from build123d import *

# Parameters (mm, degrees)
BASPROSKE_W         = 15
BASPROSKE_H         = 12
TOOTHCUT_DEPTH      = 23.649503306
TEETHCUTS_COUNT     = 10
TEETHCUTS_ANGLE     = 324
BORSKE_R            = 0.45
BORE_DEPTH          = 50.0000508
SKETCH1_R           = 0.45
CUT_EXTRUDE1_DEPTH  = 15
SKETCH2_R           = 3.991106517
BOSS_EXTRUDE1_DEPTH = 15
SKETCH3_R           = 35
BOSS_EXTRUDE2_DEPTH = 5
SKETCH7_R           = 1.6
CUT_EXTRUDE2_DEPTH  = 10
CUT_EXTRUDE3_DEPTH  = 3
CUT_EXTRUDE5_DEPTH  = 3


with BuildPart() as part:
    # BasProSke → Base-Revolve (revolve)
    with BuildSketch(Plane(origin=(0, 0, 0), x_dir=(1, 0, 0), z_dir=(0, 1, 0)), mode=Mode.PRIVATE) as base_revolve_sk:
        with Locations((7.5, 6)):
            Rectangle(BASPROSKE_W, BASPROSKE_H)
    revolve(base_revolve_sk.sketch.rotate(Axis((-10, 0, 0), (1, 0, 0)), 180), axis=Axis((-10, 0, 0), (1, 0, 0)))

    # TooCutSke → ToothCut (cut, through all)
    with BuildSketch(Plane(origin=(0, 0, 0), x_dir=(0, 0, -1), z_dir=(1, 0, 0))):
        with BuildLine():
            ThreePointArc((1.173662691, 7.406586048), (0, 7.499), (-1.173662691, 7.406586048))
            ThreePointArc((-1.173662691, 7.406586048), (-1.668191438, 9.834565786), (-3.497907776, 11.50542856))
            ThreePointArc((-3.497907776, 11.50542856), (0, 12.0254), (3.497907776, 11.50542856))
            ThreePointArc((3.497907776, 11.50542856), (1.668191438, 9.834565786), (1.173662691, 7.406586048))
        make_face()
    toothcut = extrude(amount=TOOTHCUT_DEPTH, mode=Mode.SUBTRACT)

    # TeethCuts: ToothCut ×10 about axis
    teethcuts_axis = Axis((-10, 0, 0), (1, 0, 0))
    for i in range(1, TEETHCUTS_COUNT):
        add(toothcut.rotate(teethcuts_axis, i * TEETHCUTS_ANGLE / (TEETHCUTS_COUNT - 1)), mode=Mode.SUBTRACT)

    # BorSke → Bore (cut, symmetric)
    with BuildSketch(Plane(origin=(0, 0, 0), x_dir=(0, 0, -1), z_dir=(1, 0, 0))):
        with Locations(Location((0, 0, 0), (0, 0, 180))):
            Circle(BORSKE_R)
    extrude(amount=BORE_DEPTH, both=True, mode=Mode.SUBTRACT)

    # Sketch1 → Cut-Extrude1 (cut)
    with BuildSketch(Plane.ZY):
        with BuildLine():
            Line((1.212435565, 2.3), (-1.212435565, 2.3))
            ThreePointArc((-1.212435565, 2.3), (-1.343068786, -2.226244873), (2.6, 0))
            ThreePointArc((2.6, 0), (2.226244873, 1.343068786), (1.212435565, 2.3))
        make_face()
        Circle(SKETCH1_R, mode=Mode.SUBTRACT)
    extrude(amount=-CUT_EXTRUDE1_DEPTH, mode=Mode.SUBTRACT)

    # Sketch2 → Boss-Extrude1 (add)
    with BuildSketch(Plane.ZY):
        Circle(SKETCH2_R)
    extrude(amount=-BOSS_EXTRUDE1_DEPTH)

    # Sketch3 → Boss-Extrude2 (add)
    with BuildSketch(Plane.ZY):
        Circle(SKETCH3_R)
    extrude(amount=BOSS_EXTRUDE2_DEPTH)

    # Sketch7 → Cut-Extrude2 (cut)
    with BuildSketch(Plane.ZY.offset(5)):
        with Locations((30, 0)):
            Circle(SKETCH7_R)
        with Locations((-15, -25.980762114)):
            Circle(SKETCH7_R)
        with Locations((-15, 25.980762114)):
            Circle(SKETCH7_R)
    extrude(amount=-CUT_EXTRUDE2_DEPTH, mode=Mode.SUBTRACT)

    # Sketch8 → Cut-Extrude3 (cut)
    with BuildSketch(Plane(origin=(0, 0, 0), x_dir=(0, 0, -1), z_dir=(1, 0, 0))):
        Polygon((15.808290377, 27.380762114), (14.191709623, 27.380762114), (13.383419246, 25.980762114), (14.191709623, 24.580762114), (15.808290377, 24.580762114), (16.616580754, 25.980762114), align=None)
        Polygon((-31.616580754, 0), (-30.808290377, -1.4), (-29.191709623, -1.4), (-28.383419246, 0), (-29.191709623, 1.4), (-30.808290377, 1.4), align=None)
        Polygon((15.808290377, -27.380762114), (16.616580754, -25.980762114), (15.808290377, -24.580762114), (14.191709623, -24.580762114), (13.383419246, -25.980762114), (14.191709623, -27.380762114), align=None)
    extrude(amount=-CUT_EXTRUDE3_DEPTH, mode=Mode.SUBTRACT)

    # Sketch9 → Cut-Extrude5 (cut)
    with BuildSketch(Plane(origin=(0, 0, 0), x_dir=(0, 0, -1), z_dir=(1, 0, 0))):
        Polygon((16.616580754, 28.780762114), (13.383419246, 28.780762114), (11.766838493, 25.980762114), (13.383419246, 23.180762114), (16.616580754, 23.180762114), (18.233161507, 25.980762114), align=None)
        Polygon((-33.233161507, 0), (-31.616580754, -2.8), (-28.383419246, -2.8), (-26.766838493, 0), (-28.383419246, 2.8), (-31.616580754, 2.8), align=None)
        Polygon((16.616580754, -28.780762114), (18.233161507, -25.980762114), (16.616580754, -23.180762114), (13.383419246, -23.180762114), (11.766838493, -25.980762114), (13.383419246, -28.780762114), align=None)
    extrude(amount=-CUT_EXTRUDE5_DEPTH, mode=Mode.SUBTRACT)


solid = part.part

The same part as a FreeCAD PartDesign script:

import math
import FreeCAD as App
import Part
import Sketcher
Q = App.Units.Quantity

doc = App.newDocument("Part")
body = doc.addObject("PartDesign::Body", "Body")

sketch1 = body.newObject("Sketcher::SketchObject", "Sketch")
sketch1.AttachmentSupport = (doc.getObject("XZ_Plane"), [""])
sketch1.MapMode = "FlatFace"
sketch1.addGeometry([
    Part.LineSegment(App.Vector(0, -12, 0), App.Vector(0, 0, 0)),
    Part.LineSegment(App.Vector(0, 0, 0), App.Vector(15, 0, 0)),
    Part.LineSegment(App.Vector(15, 0, 0), App.Vector(15, -12, 0)),
    Part.LineSegment(App.Vector(15, -12, 0), App.Vector(0, -12, 0)),
], False)
sketch1.addConstraint([
    Sketcher.Constraint("Coincident", 0, 2, 1, 1),
    Sketcher.Constraint("Coincident", 1, 2, 2, 1),
    Sketcher.Constraint("Coincident", 2, 2, 3, 1),
    Sketcher.Constraint("Coincident", 3, 2, 0, 1),
    Sketcher.Constraint("Vertical", 0),
    Sketcher.Constraint("Horizontal", 1),
    Sketcher.Constraint("Vertical", 2),
    Sketcher.Constraint("Horizontal", 3),
    Sketcher.Constraint("Coincident", 0, 2, -1, 1),
    Sketcher.Constraint("DistanceX", 1, 1, 1, 2, Q("15 mm")),
    Sketcher.Constraint("DistanceY", 0, 1, 0, 2, Q("12 mm")),
])
revolution = body.newObject("PartDesign::Revolution", "Revolution")
revolution.Profile = sketch1
revolution.ReferenceAxis = (sketch1, ["H_Axis"])
revolution.Angle = 360

sketch2 = body.newObject("Sketcher::SketchObject", "Sketch001")
sketch2.AttachmentSupport = (doc.getObject("YZ_Plane"), [""])
sketch2.MapMode = "FlatFace"
sketch2.addGeometry([
    Part.ArcOfCircle(Part.Circle(App.Vector(0, 0, 0), App.Vector(0, 0, 1), 7.499), math.radians(-9.004337), math.radians(9.004337)),
    Part.ArcOfCircle(Part.Circle(App.Vector(7.861508, -5.147709, 0), App.Vector(0, 0, 1), 4), math.radians(24.358856), math.radians(96.530411)),
    Part.ArcOfCircle(Part.Circle(App.Vector(0, 0, 0), App.Vector(0, 0, 1), 12.0254), math.radians(-16.910446), math.radians(16.910446)),
    Part.ArcOfCircle(Part.Circle(App.Vector(7.861508, 5.147709, 0), App.Vector(0, 0, 1), 4), math.radians(-96.530411), math.radians(-24.358856)),
], False)
sketch2.addConstraint([
    Sketcher.Constraint("Coincident", 0, 1, 1, 2),
    Sketcher.Constraint("Coincident", 1, 1, 2, 1),
    Sketcher.Constraint("Coincident", 2, 2, 3, 2),
    Sketcher.Constraint("Coincident", 3, 1, 0, 2),
    Sketcher.Constraint("Coincident", 0, 3, -1, 1),
    Sketcher.Constraint("Coincident", 2, 3, -1, 1),
    Sketcher.Constraint("Equal", 1, 3),
    Sketcher.Constraint("Symmetric", 1, 3, 3, 3, -1),
    Sketcher.Constraint("Radius", 1, Q("4 mm")),
    Sketcher.Constraint("Radius", 0, Q("7.499 mm")),
    Sketcher.Constraint("Radius", 2, Q("12.0254 mm")),
    Sketcher.Constraint("DistanceY", 1, 3, 1, 1, Q("1.649801 mm")),
    Sketcher.Constraint("DistanceX", -1, 1, 1, 3, Q("7.861508 mm")),
])
pocket1 = body.newObject("PartDesign::Pocket", "Pocket")
pocket1.Profile = sketch2
pocket1.Type = "ThroughAll"
pocket1.Reversed = True
doc.recompute()

polarpattern = body.newObject("PartDesign::PolarPattern", "PolarPattern")
polarpattern.Originals = [pocket1]
polarpattern.Axis = (doc.getObject("X_Axis"), [""])
polarpattern.Angle = 360
polarpattern.Occurrences = 10
body.Tip = polarpattern

sketch3 = body.newObject("Sketcher::SketchObject", "Sketch002")
sketch3.AttachmentSupport = (doc.getObject("YZ_Plane"), [""])
sketch3.MapMode = "FlatFace"
sketch3.addGeometry(Part.Circle(App.Vector(0, 0, 0), App.Vector(0, 0, 1), 0.45), False)
sketch3.addConstraint([
    Sketcher.Constraint("Coincident", 0, 3, -1, 1),
    Sketcher.Constraint("Diameter", 0, Q("0.9 mm")),
])
pocket2 = body.newObject("PartDesign::Pocket", "Pocket001")
pocket2.Profile = sketch3
pocket2.Length = 100.000102
pocket2.Midplane = True

sketch4 = body.newObject("Sketcher::SketchObject", "Sketch003")
sketch4.AttachmentSupport = (doc.getObject("YZ_Plane"), [""])
sketch4.MapMode = "FlatFace"
sketch4.addGeometry([
    Part.LineSegment(App.Vector(2.3, 1.212436, 0), App.Vector(2.3, -1.212436, 0)),
    Part.ArcOfCircle(Part.Circle(App.Vector(0, 0, 0), App.Vector(0, 0, 1), 2.6), math.radians(90), math.radians(332.204228)),
    Part.ArcOfCircle(Part.Circle(App.Vector(0, 0, 0), App.Vector(0, 0, 1), 2.6), math.radians(27.795772), math.radians(90)),
    Part.Circle(App.Vector(0, 0, 0), App.Vector(0, 0, 1), 0.45),
], False)
sketch4.addConstraint([
    Sketcher.Constraint("Coincident", 0, 2, 1, 2),
    Sketcher.Constraint("Tangent", 1, 1, 2, 2),
    Sketcher.Constraint("Coincident", 2, 1, 0, 1),
    Sketcher.Constraint("Vertical", 0),
    Sketcher.Constraint("Coincident", 1, 3, -1, 1),
    Sketcher.Constraint("Coincident", 3, 3, -1, 1),
    Sketcher.Constraint("Equal", 1, 2),
    Sketcher.Constraint("PointOnObject", 1, 1, -2),
    Sketcher.Constraint("Diameter", 3, Q("0.9 mm")),
    Sketcher.Constraint("Radius", 1, Q("2.6 mm")),
    Sketcher.Constraint("DistanceX", -1, 1, 0, 2, Q("2.3 mm")),
])
pocket3 = body.newObject("PartDesign::Pocket", "Pocket002")
pocket3.Profile = sketch4
pocket3.Length = 15
pocket3.Reversed = True

sketch5 = body.newObject("Sketcher::SketchObject", "Sketch004")
sketch5.AttachmentSupport = (doc.getObject("YZ_Plane"), [""])
sketch5.MapMode = "FlatFace"
sketch5.addGeometry(Part.Circle(App.Vector(0, 0, 0), App.Vector(0, 0, 1), 3.991107), False)
sketch5.addConstraint([
    Sketcher.Constraint("Coincident", 0, 3, -1, 1),
    Sketcher.Constraint("Diameter", 0, Q("7.982213 mm")),
])
pad1 = body.newObject("PartDesign::Pad", "Pad")
pad1.Profile = sketch5
pad1.Length = 15

sketch6 = body.newObject("Sketcher::SketchObject", "Sketch005")
sketch6.AttachmentSupport = (doc.getObject("YZ_Plane"), [""])
sketch6.MapMode = "FlatFace"
sketch6.addGeometry(Part.Circle(App.Vector(0, 0, 0), App.Vector(0, 0, 1), 35), False)
sketch6.addConstraint([
    Sketcher.Constraint("Coincident", 0, 3, -1, 1),
    Sketcher.Constraint("Diameter", 0, Q("70 mm")),
])
pad2 = body.newObject("PartDesign::Pad", "Pad001")
pad2.Profile = sketch6
pad2.Length = 5
pad2.Reversed = True

sketch7 = body.newObject("Sketcher::SketchObject", "Sketch006")
sketch7.AttachmentSupport = (doc.getObject("YZ_Plane"), [""])
sketch7.MapMode = "FlatFace"
sketch7.AttachmentOffset = App.Placement(App.Vector(0, 0, -5), App.Rotation())
sketch7.addGeometry([
    Part.Circle(App.Vector(0, 30, 0), App.Vector(0, 0, 1), 1.6),
    Part.Circle(App.Vector(-25.980762, -15, 0), App.Vector(0, 0, 1), 1.6),
    Part.Circle(App.Vector(25.980762, -15, 0), App.Vector(0, 0, 1), 1.6),
], False)
sketch7.addConstraint([
    Sketcher.Constraint("Equal", 0, 1),
    Sketcher.Constraint("Equal", 1, 2),
    Sketcher.Constraint("Symmetric", 1, 3, 2, 3, -2),
    Sketcher.Constraint("PointOnObject", 0, 3, -2),
    Sketcher.Constraint("Diameter", 0, Q("3.2 mm")),
    Sketcher.Constraint("DistanceY", -1, 1, 0, 3, Q("30 mm")),
    Sketcher.Constraint("DistanceY", 1, 3, -1, 1, Q("15 mm")),
    Sketcher.Constraint("DistanceX", 1, 3, -1, 1, Q("25.980762 mm")),
])
pocket4 = body.newObject("PartDesign::Pocket", "Pocket003")
pocket4.Profile = sketch7
pocket4.Length = 10
pocket4.Reversed = True

sketch8 = body.newObject("Sketcher::SketchObject", "Sketch007")
sketch8.AttachmentSupport = (doc.getObject("YZ_Plane"), [""])
sketch8.MapMode = "FlatFace"
sketch8.addGeometry([
    Part.LineSegment(App.Vector(27.380762, -15.80829, 0), App.Vector(27.380762, -14.19171, 0)),
    Part.LineSegment(App.Vector(27.380762, -14.19171, 0), App.Vector(25.980762, -13.383419, 0)),
    Part.LineSegment(App.Vector(25.980762, -13.383419, 0), App.Vector(24.580762, -14.19171, 0)),
    Part.LineSegment(App.Vector(24.580762, -14.19171, 0), App.Vector(24.580762, -15.80829, 0)),
    Part.LineSegment(App.Vector(24.580762, -15.80829, 0), App.Vector(25.980762, -16.616581, 0)),
    Part.LineSegment(App.Vector(25.980762, -16.616581, 0), App.Vector(27.380762, -15.80829, 0)),
    Part.LineSegment(App.Vector(0, 31.616581, 0), App.Vector(-1.4, 30.80829, 0)),
    Part.LineSegment(App.Vector(-1.4, 30.80829, 0), App.Vector(-1.4, 29.19171, 0)),
    Part.LineSegment(App.Vector(-1.4, 29.19171, 0), App.Vector(0, 28.383419, 0)),
    Part.LineSegment(App.Vector(0, 28.383419, 0), App.Vector(1.4, 29.19171, 0)),
    Part.LineSegment(App.Vector(1.4, 29.19171, 0), App.Vector(1.4, 30.80829, 0)),
    Part.LineSegment(App.Vector(1.4, 30.80829, 0), App.Vector(0, 31.616581, 0)),
    Part.LineSegment(App.Vector(-27.380762, -15.80829, 0), App.Vector(-25.980762, -16.616581, 0)),
    Part.LineSegment(App.Vector(-25.980762, -16.616581, 0), App.Vector(-24.580762, -15.80829, 0)),
    Part.LineSegment(App.Vector(-24.580762, -15.80829, 0), App.Vector(-24.580762, -14.19171, 0)),
    Part.LineSegment(App.Vector(-24.580762, -14.19171, 0), App.Vector(-25.980762, -13.383419, 0)),
    Part.LineSegment(App.Vector(-25.980762, -13.383419, 0), App.Vector(-27.380762, -14.19171, 0)),
    Part.LineSegment(App.Vector(-27.380762, -14.19171, 0), App.Vector(-27.380762, -15.80829, 0)),
], False)
sketch8.addConstraint([
    Sketcher.Constraint("Coincident", 0, 2, 1, 1),
    Sketcher.Constraint("Coincident", 1, 2, 2, 1),
    Sketcher.Constraint("Coincident", 2, 2, 3, 1),
    Sketcher.Constraint("Coincident", 3, 2, 4, 1),
    Sketcher.Constraint("Coincident", 4, 2, 5, 1),
    Sketcher.Constraint("Coincident", 5, 2, 0, 1),
    Sketcher.Constraint("Coincident", 6, 2, 7, 1),
    Sketcher.Constraint("Coincident", 7, 2, 8, 1),
    Sketcher.Constraint("Coincident", 8, 2, 9, 1),
    Sketcher.Constraint("Coincident", 9, 2, 10, 1),
    Sketcher.Constraint("Coincident", 10, 2, 11, 1),
    Sketcher.Constraint("Coincident", 11, 2, 6, 1),
    Sketcher.Constraint("Coincident", 12, 2, 13, 1),
    Sketcher.Constraint("Coincident", 13, 2, 14, 1),
    Sketcher.Constraint("Coincident", 14, 2, 15, 1),
    Sketcher.Constraint("Coincident", 15, 2, 16, 1),
    Sketcher.Constraint("Coincident", 16, 2, 17, 1),
    Sketcher.Constraint("Coincident", 17, 2, 12, 1),
    Sketcher.Constraint("Vertical", 0),
    Sketcher.Constraint("Vertical", 3),
    Sketcher.Constraint("Vertical", 7),
    Sketcher.Constraint("Vertical", 10),
    Sketcher.Constraint("Vertical", 14),
    Sketcher.Constraint("Vertical", 17),
    Sketcher.Constraint("Symmetric", 7, 2, 9, 2, -2),
    Sketcher.Constraint("Symmetric", 4, 2, 12, 2, -2),
    Sketcher.Constraint("Symmetric", 3, 2, 13, 2, -2),
    Sketcher.Constraint("Symmetric", 1, 2, 15, 2, -2),
    Sketcher.Constraint("Symmetric", 0, 2, 16, 2, -2),
    Sketcher.Constraint("PointOnObject", 8, 2, -2),
    Sketcher.Constraint("PointOnObject", 11, 2, -2),
    Sketcher.Constraint("Parallel", 1, 4),
    Sketcher.Constraint("Parallel", 2, 5),
    Sketcher.Constraint("Parallel", 5, 6),
    Sketcher.Constraint("Parallel", 4, 8),
    Sketcher.Constraint("Parallel", 6, 9),
    Sketcher.Constraint("Parallel", 8, 11),
    Sketcher.Constraint("Parallel", 11, 12),
    Sketcher.Constraint("Parallel", 12, 15),
    Sketcher.Constraint("Horizontal", 0, 2, 2, 2),
    Sketcher.Constraint("Horizontal", 3, 2, 5, 2),
    Sketcher.Constraint("Equal", 3, 7),
    Sketcher.Constraint("Equal", 5, 6),
    Sketcher.Constraint("Angle", 1, Q("150 deg")),
    Sketcher.Constraint("DistanceY", 2, 2, 6, 2, Q("45 mm")),
    Sketcher.Constraint("DistanceX", 6, 2, -1, 1, Q("1.4 mm")),
    Sketcher.Constraint("DistanceY", 0, 1, 0, 2, Q("1.616581 mm")),
    Sketcher.Constraint("DistanceY", 0, 2, -1, 1, Q("14.19171 mm")),
    Sketcher.Constraint("DistanceX", -1, 1, 0, 2, Q("27.380762 mm")),
])
pocket5 = body.newObject("PartDesign::Pocket", "Pocket004")
pocket5.Profile = sketch8
pocket5.Length = 3

sketch9 = body.newObject("Sketcher::SketchObject", "Sketch008")
sketch9.AttachmentSupport = (doc.getObject("YZ_Plane"), [""])
sketch9.MapMode = "FlatFace"
sketch9.addGeometry([
    Part.LineSegment(App.Vector(28.780762, -16.616581, 0), App.Vector(28.780762, -13.383419, 0)),
    Part.LineSegment(App.Vector(28.780762, -13.383419, 0), App.Vector(25.980762, -11.766838, 0)),
    Part.LineSegment(App.Vector(25.980762, -11.766838, 0), App.Vector(23.180762, -13.383419, 0)),
    Part.LineSegment(App.Vector(23.180762, -13.383419, 0), App.Vector(23.180762, -16.616581, 0)),
    Part.LineSegment(App.Vector(23.180762, -16.616581, 0), App.Vector(25.980762, -18.233162, 0)),
    Part.LineSegment(App.Vector(25.980762, -18.233162, 0), App.Vector(28.780762, -16.616581, 0)),
    Part.LineSegment(App.Vector(0, 33.233162, 0), App.Vector(-2.8, 31.616581, 0)),
    Part.LineSegment(App.Vector(-2.8, 31.616581, 0), App.Vector(-2.8, 28.383419, 0)),
    Part.LineSegment(App.Vector(-2.8, 28.383419, 0), App.Vector(0, 26.766838, 0)),
    Part.LineSegment(App.Vector(0, 26.766838, 0), App.Vector(2.8, 28.383419, 0)),
    Part.LineSegment(App.Vector(2.8, 28.383419, 0), App.Vector(2.8, 31.616581, 0)),
    Part.LineSegment(App.Vector(2.8, 31.616581, 0), App.Vector(0, 33.233162, 0)),
    Part.LineSegment(App.Vector(-28.780762, -16.616581, 0), App.Vector(-25.980762, -18.233162, 0)),
    Part.LineSegment(App.Vector(-25.980762, -18.233162, 0), App.Vector(-23.180762, -16.616581, 0)),
    Part.LineSegment(App.Vector(-23.180762, -16.616581, 0), App.Vector(-23.180762, -13.383419, 0)),
    Part.LineSegment(App.Vector(-23.180762, -13.383419, 0), App.Vector(-25.980762, -11.766838, 0)),
    Part.LineSegment(App.Vector(-25.980762, -11.766838, 0), App.Vector(-28.780762, -13.383419, 0)),
    Part.LineSegment(App.Vector(-28.780762, -13.383419, 0), App.Vector(-28.780762, -16.616581, 0)),
], False)
sketch9.addConstraint([
    Sketcher.Constraint("Coincident", 0, 2, 1, 1),
    Sketcher.Constraint("Coincident", 1, 2, 2, 1),
    Sketcher.Constraint("Coincident", 2, 2, 3, 1),
    Sketcher.Constraint("Coincident", 3, 2, 4, 1),
    Sketcher.Constraint("Coincident", 4, 2, 5, 1),
    Sketcher.Constraint("Coincident", 5, 2, 0, 1),
    Sketcher.Constraint("Coincident", 6, 2, 7, 1),
    Sketcher.Constraint("Coincident", 7, 2, 8, 1),
    Sketcher.Constraint("Coincident", 8, 2, 9, 1),
    Sketcher.Constraint("Coincident", 9, 2, 10, 1),
    Sketcher.Constraint("Coincident", 10, 2, 11, 1),
    Sketcher.Constraint("Coincident", 11, 2, 6, 1),
    Sketcher.Constraint("Coincident", 12, 2, 13, 1),
    Sketcher.Constraint("Coincident", 13, 2, 14, 1),
    Sketcher.Constraint("Coincident", 14, 2, 15, 1),
    Sketcher.Constraint("Coincident", 15, 2, 16, 1),
    Sketcher.Constraint("Coincident", 16, 2, 17, 1),
    Sketcher.Constraint("Coincident", 17, 2, 12, 1),
    Sketcher.Constraint("Vertical", 0),
    Sketcher.Constraint("Vertical", 3),
    Sketcher.Constraint("Vertical", 7),
    Sketcher.Constraint("Vertical", 10),
    Sketcher.Constraint("Vertical", 14),
    Sketcher.Constraint("Vertical", 17),
    Sketcher.Constraint("Symmetric", 7, 2, 9, 2, -2),
    Sketcher.Constraint("Symmetric", 4, 2, 12, 2, -2),
    Sketcher.Constraint("Symmetric", 3, 2, 13, 2, -2),
    Sketcher.Constraint("Symmetric", 1, 2, 15, 2, -2),
    Sketcher.Constraint("Symmetric", 0, 2, 16, 2, -2),
    Sketcher.Constraint("PointOnObject", 8, 2, -2),
    Sketcher.Constraint("PointOnObject", 11, 2, -2),
    Sketcher.Constraint("Parallel", 1, 4),
    Sketcher.Constraint("Parallel", 2, 5),
    Sketcher.Constraint("Parallel", 5, 6),
    Sketcher.Constraint("Parallel", 4, 8),
    Sketcher.Constraint("Parallel", 6, 9),
    Sketcher.Constraint("Parallel", 8, 11),
    Sketcher.Constraint("Parallel", 11, 12),
    Sketcher.Constraint("Parallel", 12, 15),
    Sketcher.Constraint("Horizontal", 0, 2, 2, 2),
    Sketcher.Constraint("Horizontal", 3, 2, 5, 2),
    Sketcher.Constraint("Equal", 3, 7),
    Sketcher.Constraint("Equal", 5, 6),
    Sketcher.Constraint("Angle", 1, Q("150 deg")),
    Sketcher.Constraint("DistanceY", 2, 2, 6, 2, Q("45 mm")),
    Sketcher.Constraint("DistanceX", 6, 2, -1, 1, Q("2.8 mm")),
    Sketcher.Constraint("DistanceY", 0, 1, 0, 2, Q("3.233162 mm")),
    Sketcher.Constraint("DistanceY", 0, 2, -1, 1, Q("13.383419 mm")),
    Sketcher.Constraint("DistanceX", -1, 1, 0, 2, Q("28.780762 mm")),
])
pocket6 = body.newObject("PartDesign::Pocket", "Pocket005")
pocket6.Profile = sketch9
pocket6.Length = 3

doc.recompute()
